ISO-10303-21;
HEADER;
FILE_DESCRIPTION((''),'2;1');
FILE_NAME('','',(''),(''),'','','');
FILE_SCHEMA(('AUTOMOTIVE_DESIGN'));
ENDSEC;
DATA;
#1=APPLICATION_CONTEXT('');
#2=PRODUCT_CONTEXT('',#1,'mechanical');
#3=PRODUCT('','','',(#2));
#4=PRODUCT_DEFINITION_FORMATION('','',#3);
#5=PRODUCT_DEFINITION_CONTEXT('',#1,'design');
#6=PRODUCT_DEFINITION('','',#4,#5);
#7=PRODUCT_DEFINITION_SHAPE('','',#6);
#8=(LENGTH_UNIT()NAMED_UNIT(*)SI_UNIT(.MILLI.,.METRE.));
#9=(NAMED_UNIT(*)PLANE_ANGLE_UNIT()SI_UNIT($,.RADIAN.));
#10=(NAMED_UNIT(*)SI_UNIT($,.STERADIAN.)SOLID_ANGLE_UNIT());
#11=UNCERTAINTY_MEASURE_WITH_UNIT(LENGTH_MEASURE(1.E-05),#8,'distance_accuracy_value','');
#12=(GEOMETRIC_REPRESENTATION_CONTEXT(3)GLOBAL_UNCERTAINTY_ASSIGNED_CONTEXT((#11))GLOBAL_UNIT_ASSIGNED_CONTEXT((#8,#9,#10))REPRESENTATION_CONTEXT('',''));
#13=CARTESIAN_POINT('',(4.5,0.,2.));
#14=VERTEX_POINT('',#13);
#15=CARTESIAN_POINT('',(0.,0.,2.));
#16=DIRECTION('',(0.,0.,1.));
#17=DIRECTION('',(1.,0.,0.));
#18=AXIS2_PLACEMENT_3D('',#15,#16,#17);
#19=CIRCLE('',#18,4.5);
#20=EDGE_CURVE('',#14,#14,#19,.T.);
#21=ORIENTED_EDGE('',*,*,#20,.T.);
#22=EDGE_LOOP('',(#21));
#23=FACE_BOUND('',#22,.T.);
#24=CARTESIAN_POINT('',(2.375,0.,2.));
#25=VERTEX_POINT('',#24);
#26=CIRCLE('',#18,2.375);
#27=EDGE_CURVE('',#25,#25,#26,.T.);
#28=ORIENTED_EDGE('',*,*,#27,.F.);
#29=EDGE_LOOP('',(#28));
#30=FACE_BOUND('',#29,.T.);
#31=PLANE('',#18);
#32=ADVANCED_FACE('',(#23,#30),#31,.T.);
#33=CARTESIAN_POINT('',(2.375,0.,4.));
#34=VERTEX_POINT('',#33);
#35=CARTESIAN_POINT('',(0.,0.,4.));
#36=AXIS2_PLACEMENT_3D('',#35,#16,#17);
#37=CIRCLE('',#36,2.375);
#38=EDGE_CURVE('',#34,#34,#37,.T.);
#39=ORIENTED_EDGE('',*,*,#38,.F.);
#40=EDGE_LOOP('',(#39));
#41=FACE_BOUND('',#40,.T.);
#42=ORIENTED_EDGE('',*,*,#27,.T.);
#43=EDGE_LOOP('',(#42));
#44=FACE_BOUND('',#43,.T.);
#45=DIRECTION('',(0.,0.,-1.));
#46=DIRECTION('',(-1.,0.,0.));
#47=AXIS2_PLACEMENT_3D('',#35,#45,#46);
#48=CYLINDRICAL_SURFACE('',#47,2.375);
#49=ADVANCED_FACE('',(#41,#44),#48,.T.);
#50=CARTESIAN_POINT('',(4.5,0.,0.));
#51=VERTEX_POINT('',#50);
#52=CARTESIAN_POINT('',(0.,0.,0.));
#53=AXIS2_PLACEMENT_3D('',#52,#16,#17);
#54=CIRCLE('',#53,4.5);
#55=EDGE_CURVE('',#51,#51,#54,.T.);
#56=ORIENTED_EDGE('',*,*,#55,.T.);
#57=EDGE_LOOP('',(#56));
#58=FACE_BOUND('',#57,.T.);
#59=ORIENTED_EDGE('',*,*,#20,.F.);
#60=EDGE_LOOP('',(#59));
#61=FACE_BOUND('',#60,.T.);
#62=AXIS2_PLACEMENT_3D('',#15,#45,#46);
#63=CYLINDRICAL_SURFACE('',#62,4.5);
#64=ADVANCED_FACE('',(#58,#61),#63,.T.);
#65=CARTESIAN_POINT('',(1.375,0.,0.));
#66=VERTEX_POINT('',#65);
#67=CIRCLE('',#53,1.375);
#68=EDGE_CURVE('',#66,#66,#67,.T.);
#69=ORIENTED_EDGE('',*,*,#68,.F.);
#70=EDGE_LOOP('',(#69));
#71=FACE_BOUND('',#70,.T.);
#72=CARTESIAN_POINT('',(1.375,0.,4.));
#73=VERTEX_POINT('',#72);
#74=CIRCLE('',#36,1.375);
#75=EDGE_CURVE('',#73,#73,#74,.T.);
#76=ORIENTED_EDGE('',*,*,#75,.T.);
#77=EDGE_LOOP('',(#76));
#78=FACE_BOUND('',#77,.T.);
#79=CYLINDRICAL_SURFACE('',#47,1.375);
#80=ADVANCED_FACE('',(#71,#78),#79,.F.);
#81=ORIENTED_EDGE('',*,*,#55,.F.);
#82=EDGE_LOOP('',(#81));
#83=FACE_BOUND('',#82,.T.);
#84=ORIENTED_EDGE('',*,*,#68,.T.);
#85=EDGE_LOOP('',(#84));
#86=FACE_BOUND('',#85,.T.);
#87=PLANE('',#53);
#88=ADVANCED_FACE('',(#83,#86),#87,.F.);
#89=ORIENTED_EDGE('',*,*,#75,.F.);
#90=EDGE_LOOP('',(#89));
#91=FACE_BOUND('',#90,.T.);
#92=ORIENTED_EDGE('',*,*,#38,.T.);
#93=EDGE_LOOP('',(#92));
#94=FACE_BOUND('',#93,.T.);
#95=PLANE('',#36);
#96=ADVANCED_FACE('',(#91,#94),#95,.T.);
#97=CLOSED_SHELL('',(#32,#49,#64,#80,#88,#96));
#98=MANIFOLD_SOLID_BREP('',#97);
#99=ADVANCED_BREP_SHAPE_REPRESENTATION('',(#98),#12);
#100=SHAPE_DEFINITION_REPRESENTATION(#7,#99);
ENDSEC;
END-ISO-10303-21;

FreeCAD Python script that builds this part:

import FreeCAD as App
import Part
import Sketcher

V = App.Vector

doc = App.newDocument("Part")
body = doc.addObject("PartDesign::Body", "Body")

sketch1 = body.newObject("Sketcher::SketchObject", "Sketch")
sketch1.AttachmentSupport = (doc.getObject("XY_Plane"), [""])
sketch1.MapMode = "FlatFace"
sketch1.addGeometry(Part.Circle(V(0, 0, 0), V(0, 0, 1), 2.4), False)
sketch1.addGeometry(Part.Circle(V(0, 0, 0), V(0, 0, 1), 1.4), False)
sketch1.addConstraint(Sketcher.Constraint("Coincident", 0, 3, -1, 1))
sketch1.addConstraint(Sketcher.Constraint("Coincident", 1, 3, -1, 1))
sketch1.addConstraint(Sketcher.Constraint("Diameter", 0, 4.75))
sketch1.addConstraint(Sketcher.Constraint("Diameter", 1, 2.75))
pad1 = body.newObject("PartDesign::Pad", "Pad")
pad1.Profile = sketch1
pad1.Length = 4

sketch2 = body.newObject("Sketcher::SketchObject", "Sketch001")
sketch2.AttachmentSupport = (doc.getObject("XY_Plane"), [""])
sketch2.MapMode = "FlatFace"
sketch2.addGeometry(Part.Circle(V(0, 0, 0), V(0, 0, 1), 4.5), False)
sketch2.addGeometry(Part.Circle(V(0, 0, 0), V(0, 0, 1), 2.4), False)
sketch2.addConstraint(Sketcher.Constraint("Coincident", 0, 3, -1, 1))
sketch2.addConstraint(Sketcher.Constraint("Coincident", 1, 3, -1, 1))
sketch2.addConstraint(Sketcher.Constraint("Diameter", 0, 9.0))
sketch2.addConstraint(Sketcher.Constraint("Diameter", 1, 4.75))
pad2 = body.newObject("PartDesign::Pad", "Pad001")
pad2.Profile = sketch2
pad2.Length = 2

doc.recompute()
